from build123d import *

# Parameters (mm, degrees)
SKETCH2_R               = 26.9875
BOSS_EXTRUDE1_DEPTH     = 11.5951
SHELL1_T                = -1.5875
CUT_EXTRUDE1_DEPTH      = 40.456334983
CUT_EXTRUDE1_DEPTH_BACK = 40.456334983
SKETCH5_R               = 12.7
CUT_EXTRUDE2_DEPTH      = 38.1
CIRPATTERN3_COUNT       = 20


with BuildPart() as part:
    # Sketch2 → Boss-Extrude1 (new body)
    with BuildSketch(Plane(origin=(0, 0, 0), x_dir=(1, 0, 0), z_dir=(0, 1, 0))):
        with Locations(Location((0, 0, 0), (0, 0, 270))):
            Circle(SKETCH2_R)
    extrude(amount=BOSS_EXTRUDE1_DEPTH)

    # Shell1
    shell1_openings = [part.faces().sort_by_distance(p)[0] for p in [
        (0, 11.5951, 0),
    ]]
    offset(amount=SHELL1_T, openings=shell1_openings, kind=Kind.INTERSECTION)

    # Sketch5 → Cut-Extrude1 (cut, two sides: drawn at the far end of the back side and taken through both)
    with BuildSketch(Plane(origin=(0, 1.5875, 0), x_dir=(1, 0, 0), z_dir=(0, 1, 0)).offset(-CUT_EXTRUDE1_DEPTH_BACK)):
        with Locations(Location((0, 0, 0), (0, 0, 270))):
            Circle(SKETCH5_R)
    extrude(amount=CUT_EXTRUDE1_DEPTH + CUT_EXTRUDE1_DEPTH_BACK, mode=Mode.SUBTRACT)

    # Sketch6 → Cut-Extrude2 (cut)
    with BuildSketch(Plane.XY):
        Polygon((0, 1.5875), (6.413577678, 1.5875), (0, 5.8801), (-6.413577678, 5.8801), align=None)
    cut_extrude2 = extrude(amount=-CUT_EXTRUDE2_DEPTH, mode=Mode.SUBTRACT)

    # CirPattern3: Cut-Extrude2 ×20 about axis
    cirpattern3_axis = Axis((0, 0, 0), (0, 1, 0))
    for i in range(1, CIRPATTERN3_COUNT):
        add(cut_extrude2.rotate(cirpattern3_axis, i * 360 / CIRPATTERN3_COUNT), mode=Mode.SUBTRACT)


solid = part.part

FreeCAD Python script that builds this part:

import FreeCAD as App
import Part
import Sketcher
Q = App.Units.Quantity


def faces_at(feature, points):
    """Names of the faces that lie closest to the given points."""
    faces = feature.Shape.Faces
    near = lambda p: min(range(len(faces)), key=lambda i: faces[i].distToShape(Part.Vertex(*p))[0])
    return sorted({f"Face{near(p) + 1}" for p in points})

doc = App.newDocument("Part")
params = doc.addObject("Spreadsheet::Sheet", "Params")
for row, (alias, value) in enumerate([
    ("sketch1_diameter", "2.125 in"),
    ("pad1_length", "0.4565 in"),
    ("thickness_wall", "0.0625 in"),
    ("sketch2_diameter", "1 in"),
    ("pocket2_length", "1.5 in"),
], start=1):
    params.set(f"A{row}", alias)
    params.set(f"B{row}", "=" + value)
    params.setAlias(f"B{row}", alias)

body = doc.addObject("PartDesign::Body", "Body")

sketch1 = body.newObject("Sketcher::SketchObject", "Sketch")
sketch1.AttachmentSupport = (doc.getObject("XZ_Plane"), [""])
sketch1.MapMode = "FlatFace"
sketch1.addGeometry(Part.Circle(App.Vector(0, 0, 0), App.Vector(0, 0, 1), 27), False)
sketch1.addConstraint([
    Sketcher.Constraint("Coincident", 0, 3, -1, 1),
    Sketcher.Constraint("Diameter", 0, Q("2.125 in")),
])
sketch1.setExpression("Constraints[1]", "Params.sketch1_diameter")
pad1 = body.newObject("PartDesign::Pad", "Pad")
pad1.Profile = sketch1
pad1.setExpression("Length", "Params.pad1_length")
pad1.Reversed = True
doc.recompute()

thickness = body.newObject("PartDesign::Thickness", "Thickness")
thickness.Base = (pad1, faces_at(pad1, [(0, 11.595, 0)]))
thickness.setExpression("Value", "Params.thickness_wall")
thickness.Reversed = True
thickness.Join = "Intersection"

sketch2 = body.newObject("Sketcher::SketchObject", "Sketch001")
sketch2.AttachmentSupport = (doc.getObject("XZ_Plane"), [""])
sketch2.MapMode = "FlatFace"
sketch2.AttachmentOffset = App.Placement(App.Vector(0, 0, -0.0625 * 25.4), App.Rotation())
sketch2.addGeometry(Part.Circle(App.Vector(0, 0, 0), App.Vector(0, 0, 1), 13), False)
sketch2.addConstraint([
    Sketcher.Constraint("Coincident", 0, 3, -1, 1),
    Sketcher.Constraint("Diameter", 0, Q("1 in")),
])
sketch2.setExpression("Constraints[1]", "Params.sketch2_diameter")
pocket1 = body.newObject("PartDesign::Pocket", "Pocket")
pocket1.Profile = sketch2
pocket1.Type = "ThroughAll"
pocket1.Midplane = True

sketch3 = body.newObject("Sketcher::SketchObject", "Sketch002")
sketch3.AttachmentSupport = (doc.getObject("XY_Plane"), [""])
sketch3.MapMode = "FlatFace"
sketch3.addGeometry([
    Part.LineSegment(App.Vector(0, 2, 0), App.Vector(6, 2, 0)),
    Part.LineSegment(App.Vector(6, 2, 0), App.Vector(0, 6, 0)),
    Part.LineSegment(App.Vector(0, 6, 0), App.Vector(-6, 6, 0)),
    Part.LineSegment(App.Vector(-6, 6, 0), App.Vector(0, 2, 0)),
], False)
sketch3.addConstraint([
    Sketcher.Constraint("Coincident", 0, 2, 1, 1),
    Sketcher.Constraint("Coincident", 1, 2, 2, 1),
    Sketcher.Constraint("Coincident", 2, 2, 3, 1),
    Sketcher.Constraint("Coincident", 3, 2, 0, 1),
    Sketcher.Constraint("Horizontal", 0),
    Sketcher.Constraint("Horizontal", 2),
    Sketcher.Constraint("PointOnObject", 1, 2, -2),
    Sketcher.Constraint("PointOnObject", 3, 2, -2),
    Sketcher.Constraint("Parallel", 1, 3),
    Sketcher.Constraint("DistanceY", -1, 1, 0, 2, Q("0.0625 in")),
    Sketcher.Constraint("DistanceY", 0, 2, 1, 2, Q("0.169 in")),
    Sketcher.Constraint("Distance", 1, 7.717538),
])
pocket2 = body.newObject("PartDesign::Pocket", "Pocket001")
pocket2.Profile = sketch3
pocket2.setExpression("Length", "Params.pocket2_length")
doc.recompute()

polarpattern = body.newObject("PartDesign::PolarPattern", "PolarPattern")
polarpattern.Originals = [pocket2]
polarpattern.Axis = (doc.getObject("Y_Axis"), [""])
polarpattern.Angle = 360
polarpattern.Occurrences = 20
body.Tip = polarpattern

doc.recompute()
